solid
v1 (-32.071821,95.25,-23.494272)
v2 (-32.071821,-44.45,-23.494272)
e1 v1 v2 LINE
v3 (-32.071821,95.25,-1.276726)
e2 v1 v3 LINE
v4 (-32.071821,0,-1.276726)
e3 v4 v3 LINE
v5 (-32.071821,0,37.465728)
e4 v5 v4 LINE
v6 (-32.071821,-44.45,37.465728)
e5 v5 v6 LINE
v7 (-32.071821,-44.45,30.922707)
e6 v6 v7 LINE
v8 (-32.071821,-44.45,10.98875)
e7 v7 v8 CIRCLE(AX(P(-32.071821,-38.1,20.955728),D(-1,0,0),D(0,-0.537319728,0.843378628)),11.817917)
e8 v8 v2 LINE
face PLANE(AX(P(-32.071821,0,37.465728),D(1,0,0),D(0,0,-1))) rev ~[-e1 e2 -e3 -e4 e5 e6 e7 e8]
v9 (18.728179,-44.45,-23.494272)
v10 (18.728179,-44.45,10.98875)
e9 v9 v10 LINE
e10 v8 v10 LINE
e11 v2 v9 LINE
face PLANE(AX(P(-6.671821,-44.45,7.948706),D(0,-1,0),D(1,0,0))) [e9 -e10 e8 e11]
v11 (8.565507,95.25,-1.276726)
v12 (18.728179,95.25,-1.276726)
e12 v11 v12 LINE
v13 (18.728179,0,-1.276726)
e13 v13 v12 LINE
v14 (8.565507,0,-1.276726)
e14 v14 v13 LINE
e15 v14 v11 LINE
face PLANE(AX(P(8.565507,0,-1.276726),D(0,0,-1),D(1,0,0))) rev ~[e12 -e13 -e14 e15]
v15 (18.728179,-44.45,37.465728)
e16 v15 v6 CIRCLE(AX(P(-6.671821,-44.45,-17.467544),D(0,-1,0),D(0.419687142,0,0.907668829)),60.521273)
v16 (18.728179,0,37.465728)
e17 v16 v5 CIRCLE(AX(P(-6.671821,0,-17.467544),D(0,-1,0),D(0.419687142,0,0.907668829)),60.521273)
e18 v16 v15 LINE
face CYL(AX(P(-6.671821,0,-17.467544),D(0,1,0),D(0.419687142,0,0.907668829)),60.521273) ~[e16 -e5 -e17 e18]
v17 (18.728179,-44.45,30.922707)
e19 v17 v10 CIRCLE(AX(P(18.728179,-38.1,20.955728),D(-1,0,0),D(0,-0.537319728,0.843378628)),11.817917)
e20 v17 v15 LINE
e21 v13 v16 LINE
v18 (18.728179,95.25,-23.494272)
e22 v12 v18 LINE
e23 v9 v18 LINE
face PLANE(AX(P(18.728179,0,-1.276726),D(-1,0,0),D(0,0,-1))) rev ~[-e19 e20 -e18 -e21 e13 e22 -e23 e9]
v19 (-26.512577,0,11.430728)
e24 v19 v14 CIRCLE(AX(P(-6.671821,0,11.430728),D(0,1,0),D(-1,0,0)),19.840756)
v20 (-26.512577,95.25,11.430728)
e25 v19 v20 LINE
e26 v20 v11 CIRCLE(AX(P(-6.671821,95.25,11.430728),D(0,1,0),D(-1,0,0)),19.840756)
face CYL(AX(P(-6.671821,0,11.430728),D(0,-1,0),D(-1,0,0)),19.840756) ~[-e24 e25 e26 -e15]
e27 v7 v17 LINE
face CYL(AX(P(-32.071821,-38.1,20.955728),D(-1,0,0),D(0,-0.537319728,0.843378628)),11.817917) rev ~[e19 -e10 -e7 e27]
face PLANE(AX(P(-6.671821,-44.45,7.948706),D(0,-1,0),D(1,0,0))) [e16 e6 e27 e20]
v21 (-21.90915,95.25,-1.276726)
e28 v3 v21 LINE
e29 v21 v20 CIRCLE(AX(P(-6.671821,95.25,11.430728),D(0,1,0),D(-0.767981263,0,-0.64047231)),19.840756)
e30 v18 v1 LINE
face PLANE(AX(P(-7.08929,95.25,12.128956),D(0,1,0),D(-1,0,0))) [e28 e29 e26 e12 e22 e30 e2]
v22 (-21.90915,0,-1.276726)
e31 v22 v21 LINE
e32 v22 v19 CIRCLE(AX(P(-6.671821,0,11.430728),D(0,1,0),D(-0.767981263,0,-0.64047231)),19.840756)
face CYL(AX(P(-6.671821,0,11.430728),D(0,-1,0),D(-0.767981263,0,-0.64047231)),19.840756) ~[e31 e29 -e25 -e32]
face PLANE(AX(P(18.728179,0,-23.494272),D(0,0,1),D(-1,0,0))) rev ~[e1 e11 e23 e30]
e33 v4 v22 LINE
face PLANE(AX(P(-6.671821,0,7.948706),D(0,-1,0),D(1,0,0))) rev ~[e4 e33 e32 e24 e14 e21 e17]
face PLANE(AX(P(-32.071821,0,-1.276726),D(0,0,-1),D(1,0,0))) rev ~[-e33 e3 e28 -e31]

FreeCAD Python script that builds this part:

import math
import FreeCAD as App
import Part
import Sketcher
Q = App.Units.Quantity

doc = App.newDocument("Part")
body = doc.addObject("PartDesign::Body", "Body")

sketch1 = body.newObject("Sketcher::SketchObject", "Sketch")
sketch1.AttachmentSupport = (doc.getObject("XZ_Plane"), [""])
sketch1.MapMode = "FlatFace"
sketch1.addGeometry(Part.LineSegment(App.Vector(-32, -23, 0), App.Vector(19, -23, 0)), False)
sketch1.addGeometry(Part.LineSegment(App.Vector(19, -23, 0), App.Vector(19, 37, 0)), False)
sketch1.addGeometry(Part.ArcOfCircle(Part.Circle(App.Vector(-7, -17, 0), App.Vector(0, 0, 1), 61), math.radians(65), math.radians(115)), False)
sketch1.addGeometry(Part.LineSegment(App.Vector(-32, 37, 0), App.Vector(-32, -23, 0)), False)
sketch1.addConstraint(Sketcher.Constraint("Coincident", 0, 2, 1, 1))
sketch1.addConstraint(Sketcher.Constraint("Coincident", 1, 2, 2, 1))
sketch1.addConstraint(Sketcher.Constraint("Coincident", 2, 2, 3, 1))
sketch1.addConstraint(Sketcher.Constraint("Coincident", 3, 2, 0, 1))
sketch1.addConstraint(Sketcher.Constraint("Horizontal", 0))
sketch1.addConstraint(Sketcher.Constraint("Vertical", 1))
sketch1.addConstraint(Sketcher.Constraint("Vertical", 3))
sketch1.addConstraint(Sketcher.Constraint("Horizontal", 1, 2, 2, 2))
sketch1.addConstraint(Sketcher.Constraint("DistanceX", 0, 1, 0, 2, Q("2 in")))
sketch1.addConstraint(Sketcher.Constraint("DistanceY", 1, 1, 1, 2, Q("2.4 in")))
sketch1.addConstraint(Sketcher.Constraint("Radius", 2, 60.521273))
sketch1.addConstraint(Sketcher.Constraint("DistanceX", 2, 3, -1, 1, 6.671821))
sketch1.addConstraint(Sketcher.Constraint("DistanceY", 0, 2, -1, 1, 23.494272))
pad1 = body.newObject("PartDesign::Pad", "Pad")
pad1.Profile = sketch1
pad1.Length = Q("1.75 in")

sketch2 = body.newObject("Sketcher::SketchObject", "Sketch001")
sketch2.AttachmentSupport = (doc.getObject("YZ_Plane"), [""])
sketch2.MapMode = "FlatFace"
sketch2.AttachmentOffset = App.Placement(App.Vector(0, 0, -32.071821), App.Rotation())
sketch2.addGeometry(Part.LineSegment(App.Vector(-44, 11, 0), App.Vector(-44, 31, 0)), False)
sketch2.addGeometry(Part.ArcOfCircle(Part.Circle(App.Vector(-38, 21, 0), App.Vector(0, 0, 1), 12), math.radians(-123), math.radians(123)), False)
sketch2.addConstraint(Sketcher.Constraint("Coincident", 0, 1, 1, 1))
sketch2.addConstraint(Sketcher.Constraint("Coincident", 1, 2, 0, 2))
sketch2.addConstraint(Sketcher.Constraint("Vertical", 0))
sketch2.addConstraint(Sketcher.Constraint("DistanceX", 1, 3, -1, 1, Q("1.5 in")))
sketch2.addConstraint(Sketcher.Constraint("DistanceX", 0, 1, -1, 1, Q("1.75 in")))
sketch2.addConstraint(Sketcher.Constraint("Radius", 1, 11.817917))
sketch2.addConstraint(Sketcher.Constraint("DistanceY", -1, 1, 1, 3, 20.955728))
pocket1 = body.newObject("PartDesign::Pocket", "Pocket")
pocket1.Profile = sketch2
pocket1.Length = Q("2 in")
pocket1.Reversed = True

sketch3 = body.newObject("Sketcher::SketchObject", "Sketch002")
sketch3.AttachmentSupport = (doc.getObject("XZ_Plane"), [""])
sketch3.MapMode = "FlatFace"
sketch3.addGeometry(Part.ArcOfCircle(Part.Circle(App.Vector(-7, 11, 0), App.Vector(0, 0, 1), 20), math.radians(-40), math.radians(180)), False)
sketch3.addGeometry(Part.LineSegment(App.Vector(9, -1, 0), App.Vector(19, -1, 0)), False)
sketch3.addGeometry(Part.LineSegment(App.Vector(19, -1, 0), App.Vector(19, -23, 0)), False)
sketch3.addGeometry(Part.LineSegment(App.Vector(19, -23, 0), App.Vector(-32, -23, 0)), False)
sketch3.addGeometry(Part.LineSegment(App.Vector(-32, -23, 0), App.Vector(-32, -1, 0)), False)
sketch3.addGeometry(Part.LineSegment(App.Vector(-32, -1, 0), App.Vector(-22, -1, 0)), False)
sketch3.addGeometry(Part.ArcOfCircle(Part.Circle(App.Vector(-7, 11, 0), App.Vector(0, 0, 1), 20), math.radians(180), math.radians(220)), False)
sketch3.addConstraint(Sketcher.Constraint("Coincident", 0, 1, 1, 1))
sketch3.addConstraint(Sketcher.Constraint("Coincident", 1, 2, 2, 1))
sketch3.addConstraint(Sketcher.Constraint("Coincident", 2, 2, 3, 1))
sketch3.addConstraint(Sketcher.Constraint("Coincident", 3, 2, 4, 1))
sketch3.addConstraint(Sketcher.Constraint("Coincident", 4, 2, 5, 1))
sketch3.addConstraint(Sketcher.Constraint("Coincident", 5, 2, 6, 2))
sketch3.addConstraint(Sketcher.Constraint("Tangent", 6, 1, 0, 2))
sketch3.addConstraint(Sketcher.Constraint("Horizontal", 1))
sketch3.addConstraint(Sketcher.Constraint("Vertical", 2))
sketch3.addConstraint(Sketcher.Constraint("Horizontal", 3))
sketch3.addConstraint(Sketcher.Constraint("Vertical", 4))
sketch3.addConstraint(Sketcher.Constraint("Horizontal", 5))
sketch3.addConstraint(Sketcher.Constraint("Equal", 0, 6))
sketch3.addConstraint(Sketcher.Constraint("Horizontal", 1, 2, 4, 2))
sketch3.addConstraint(Sketcher.Constraint("Horizontal", 0, 3, 6, 1))
sketch3.addConstraint(Sketcher.Constraint("Equal", 1, 5))
sketch3.addConstraint(Sketcher.Constraint("DistanceX", 3, 2, 3, 1, Q("2 in")))
sketch3.addConstraint(Sketcher.Constraint("DistanceY", 2, 2, 0, 3, Q("1.375 in")))
sketch3.addConstraint(Sketcher.Constraint("Radius", 0, 19.840756))
sketch3.addConstraint(Sketcher.Constraint("DistanceX", 1, 1, 1, 2, 10.162671))
sketch3.addConstraint(Sketcher.Constraint("DistanceX", 0, 3, -1, 1, 6.671821))
sketch3.addConstraint(Sketcher.Constraint("DistanceY", -1, 1, 0, 3, 11.430728))
pad2 = body.newObject("PartDesign::Pad", "Pad001")
pad2.Profile = sketch3
pad2.Length = Q("3.75 in")
pad2.Reversed = True

doc.recompute()
